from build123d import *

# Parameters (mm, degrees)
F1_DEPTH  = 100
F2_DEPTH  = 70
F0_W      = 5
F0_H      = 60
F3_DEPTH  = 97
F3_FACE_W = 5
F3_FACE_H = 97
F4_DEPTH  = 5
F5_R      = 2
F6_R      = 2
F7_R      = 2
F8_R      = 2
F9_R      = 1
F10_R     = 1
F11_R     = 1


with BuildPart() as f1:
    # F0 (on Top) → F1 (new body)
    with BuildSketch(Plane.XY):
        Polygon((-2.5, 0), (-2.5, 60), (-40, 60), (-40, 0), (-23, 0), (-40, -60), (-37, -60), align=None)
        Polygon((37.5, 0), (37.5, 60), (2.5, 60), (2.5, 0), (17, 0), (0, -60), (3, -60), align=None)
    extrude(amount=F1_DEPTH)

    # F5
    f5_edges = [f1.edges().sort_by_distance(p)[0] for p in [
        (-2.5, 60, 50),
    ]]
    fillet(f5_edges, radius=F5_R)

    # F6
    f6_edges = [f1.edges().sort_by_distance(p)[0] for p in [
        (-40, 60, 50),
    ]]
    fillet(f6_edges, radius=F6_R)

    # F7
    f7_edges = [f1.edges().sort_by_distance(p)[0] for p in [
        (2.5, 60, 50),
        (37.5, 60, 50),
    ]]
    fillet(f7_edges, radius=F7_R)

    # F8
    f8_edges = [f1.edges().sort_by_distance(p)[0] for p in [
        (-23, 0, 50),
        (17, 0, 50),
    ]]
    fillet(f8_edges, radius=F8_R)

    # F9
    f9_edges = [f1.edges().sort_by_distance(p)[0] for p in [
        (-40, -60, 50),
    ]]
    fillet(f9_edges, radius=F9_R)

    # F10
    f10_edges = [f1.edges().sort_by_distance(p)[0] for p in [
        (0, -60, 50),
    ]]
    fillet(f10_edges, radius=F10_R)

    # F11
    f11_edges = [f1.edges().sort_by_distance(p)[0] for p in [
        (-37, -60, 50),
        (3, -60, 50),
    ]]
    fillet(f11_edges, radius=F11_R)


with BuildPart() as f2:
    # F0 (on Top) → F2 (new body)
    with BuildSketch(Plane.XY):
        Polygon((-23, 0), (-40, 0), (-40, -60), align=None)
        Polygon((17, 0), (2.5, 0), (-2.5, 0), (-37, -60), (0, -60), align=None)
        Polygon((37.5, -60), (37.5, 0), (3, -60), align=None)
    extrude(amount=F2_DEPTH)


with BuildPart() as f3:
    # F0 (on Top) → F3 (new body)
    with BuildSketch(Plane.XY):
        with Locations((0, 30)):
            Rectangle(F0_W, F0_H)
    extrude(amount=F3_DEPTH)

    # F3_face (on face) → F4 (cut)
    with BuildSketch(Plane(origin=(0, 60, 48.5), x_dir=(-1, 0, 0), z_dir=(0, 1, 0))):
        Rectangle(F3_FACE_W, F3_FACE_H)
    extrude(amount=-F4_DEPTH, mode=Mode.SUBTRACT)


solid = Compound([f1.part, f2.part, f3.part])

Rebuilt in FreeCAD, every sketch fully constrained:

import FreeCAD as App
import Part
import Sketcher

V = App.Vector
Q = App.Units.Quantity


def edges_at(feature, points):
    """Names of the edges that pass closest to the given points."""
    edges = feature.Shape.Edges
    near = lambda p: min(range(len(edges)), key=lambda i: edges[i].distToShape(Part.Vertex(*p))[0])
    return sorted({f"Edge{near(p) + 1}" for p in points})

doc = App.newDocument("Part")
body = doc.addObject("PartDesign::Body", "Body")
body.AllowCompound = True

# Sketch on XY plane
sketch1 = doc.addObject("Sketcher::SketchObject", "Sketch")
body.addObject(sketch1)
sketch1.AttachmentSupport = (doc.XY_Plane, [""])
sketch1.MapMode = "FlatFace"
sketch1.addGeometry([
    Part.LineSegment(V(-2.5, 0, 0), V(-2.5, 60, 0)),  # 0
    Part.LineSegment(V(-2.5, 60, 0), V(-40, 60, 0)),  # 1
    Part.LineSegment(V(-40, 60, 0), V(-40, 0, 0)),  # 2
    Part.LineSegment(V(-40, 0, 0), V(-23, 0, 0)),  # 3
    Part.LineSegment(V(-23, 0, 0), V(-40, -60, 0)),  # 4
    Part.LineSegment(V(-40, -60, 0), V(-37, -60, 0)),  # 5
    Part.LineSegment(V(-37, -60, 0), V(-2.5, 0, 0)),  # 6
    Part.LineSegment(V(37.5, 0, 0), V(37.5, 60, 0)),  # 7
    Part.LineSegment(V(37.5, 60, 0), V(2.5, 60, 0)),  # 8
    Part.LineSegment(V(2.5, 60, 0), V(2.5, 0, 0)),  # 9
    Part.LineSegment(V(2.5, 0, 0), V(17, 0, 0)),  # 10
    Part.LineSegment(V(17, 0, 0), V(0, -60, 0)),  # 11
    Part.LineSegment(V(0, -60, 0), V(3, -60, 0)),  # 12
    Part.LineSegment(V(3, -60, 0), V(37.5, 0, 0)),  # 13
], False)
sketch1.addConstraint([
    Sketcher.Constraint("Coincident", 0, 2, 1, 1),
    Sketcher.Constraint("Coincident", 1, 2, 2, 1),
    Sketcher.Constraint("Coincident", 2, 2, 3, 1),
    Sketcher.Constraint("Coincident", 3, 2, 4, 1),
    Sketcher.Constraint("Coincident", 4, 2, 5, 1),
    Sketcher.Constraint("Coincident", 5, 2, 6, 1),
    Sketcher.Constraint("Coincident", 6, 2, 0, 1),
    Sketcher.Constraint("Coincident", 7, 2, 8, 1),
    Sketcher.Constraint("Coincident", 8, 2, 9, 1),
    Sketcher.Constraint("Coincident", 9, 2, 10, 1),
    Sketcher.Constraint("Coincident", 10, 2, 11, 1),
    Sketcher.Constraint("Coincident", 11, 2, 12, 1),
    Sketcher.Constraint("Coincident", 12, 2, 13, 1),
    Sketcher.Constraint("Coincident", 13, 2, 7, 1),
    Sketcher.Constraint("Vertical", 0),
    Sketcher.Constraint("Horizontal", 1),
    Sketcher.Constraint("Vertical", 2),
    Sketcher.Constraint("Horizontal", 3),
    Sketcher.Constraint("Horizontal", 5),
    Sketcher.Constraint("Vertical", 7),
    Sketcher.Constraint("Horizontal", 8),
    Sketcher.Constraint("Vertical", 9),
    Sketcher.Constraint("Horizontal", 10),
    Sketcher.Constraint("Horizontal", 12),
    Sketcher.Constraint("Symmetric", 6, 2, 9, 2, -1, 1),
    Sketcher.Constraint("Symmetric", 1, 2, 4, 2, -1),
    Sketcher.Constraint("PointOnObject", 2, 2, -1),
    Sketcher.Constraint("PointOnObject", 6, 2, -1),
    Sketcher.Constraint("PointOnObject", 11, 2, -2),
    Sketcher.Constraint("PointOnObject", 13, 2, -1),
    Sketcher.Constraint("Parallel", 4, 11),
    Sketcher.Constraint("Parallel", 6, 13),
    Sketcher.Constraint("Horizontal", 1, 2, 7, 2),
    Sketcher.Constraint("Horizontal", 5, 2, 11, 2),
    Sketcher.Constraint("Equal", 5, 12),
    Sketcher.Constraint("DistanceX", 3, 1, 3, 2, Q("17 mm")),
    Sketcher.Constraint("DistanceX", 5, 1, 5, 2, Q("3 mm")),
    Sketcher.Constraint("DistanceX", 8, 2, 8, 1, Q("35 mm")),
    Sketcher.Constraint("DistanceY", 0, 1, 0, 2, Q("60 mm")),
    Sketcher.Constraint("DistanceX", 1, 2, 1, 1, Q("37.5 mm")),
])
pad1 = doc.addObject("PartDesign::Pad", "Pad")
body.addObject(pad1)
pad1.Profile = sketch1
pad1.Length = 100
doc.recompute()

fillet = doc.addObject("PartDesign::Fillet", "Fillet")
body.addObject(fillet)
fillet.Base = (pad1, edges_at(pad1, [(-2.5, 60, 50)]))
fillet.Radius = 2
doc.recompute()

fillet2 = doc.addObject("PartDesign::Fillet", "Fillet001")
body.addObject(fillet2)
fillet2.Base = (fillet, edges_at(fillet, [(-40, 60, 50)]))
fillet2.Radius = 2
doc.recompute()

fillet3 = doc.addObject("PartDesign::Fillet", "Fillet002")
body.addObject(fillet3)
fillet3.Base = (fillet2, edges_at(fillet2, [(2.5, 60, 50), (37.5, 60, 50)]))
fillet3.Radius = 2
doc.recompute()

fillet4 = doc.addObject("PartDesign::Fillet", "Fillet003")
body.addObject(fillet4)
fillet4.Base = (fillet3, edges_at(fillet3, [(-23, 0, 50), (17, 0, 50)]))
fillet4.Radius = 2
doc.recompute()

fillet5 = doc.addObject("PartDesign::Fillet", "Fillet004")
body.addObject(fillet5)
fillet5.Base = (fillet4, edges_at(fillet4, [(-40, -60, 50)]))
fillet5.Radius = 1
doc.recompute()

fillet6 = doc.addObject("PartDesign::Fillet", "Fillet005")
body.addObject(fillet6)
fillet6.Base = (fillet5, edges_at(fillet5, [(0, -60, 50)]))
fillet6.Radius = 1
doc.recompute()

fillet7 = doc.addObject("PartDesign::Fillet", "Fillet006")
body.addObject(fillet7)
fillet7.Base = (fillet6, edges_at(fillet6, [(-37, -60, 50), (3, -60, 50)]))
fillet7.Radius = 1
body2 = doc.addObject("PartDesign::Body", "Body001")
body2.AllowCompound = True

# Sketch on XY plane
sketch2 = doc.addObject("Sketcher::SketchObject", "Sketch001")
body2.addObject(sketch2)
sketch2.AttachmentSupport = (doc.getObject("XY_Plane001"), [""])
sketch2.MapMode = "FlatFace"
sketch2.addGeometry([
    Part.LineSegment(V(-23, 0, 0), V(-40, 0, 0)),  # 0
    Part.LineSegment(V(-40, 0, 0), V(-40, -60, 0)),  # 1
    Part.LineSegment(V(-40, -60, 0), V(-23, 0, 0)),  # 2
    Part.LineSegment(V(17, 0, 0), V(-2, 0, 0)),  # 3
    Part.LineSegment(V(-2, 0, 0), V(-37, -60, 0)),  # 4
    Part.LineSegment(V(-37, -60, 0), V(0, -60, 0)),  # 5
    Part.LineSegment(V(0, -60, 0), V(17, 0, 0)),  # 6
    Part.LineSegment(V(38, -60, 0), V(38, 0, 0)),  # 7
    Part.LineSegment(V(38, 0, 0), V(3, -60, 0)),  # 8
    Part.LineSegment(V(3, -60, 0), V(38, -60, 0)),  # 9
], False)
sketch2.addConstraint([
    Sketcher.Constraint("Coincident", 0, 2, 1, 1),
    Sketcher.Constraint("Coincident", 1, 2, 2, 1),
    Sketcher.Constraint("Coincident", 2, 2, 0, 1),
    Sketcher.Constraint("Coincident", 3, 2, 4, 1),
    Sketcher.Constraint("Coincident", 4, 2, 5, 1),
    Sketcher.Constraint("Coincident", 5, 2, 6, 1),
    Sketcher.Constraint("Coincident", 6, 2, 3, 1),
    Sketcher.Constraint("Coincident", 7, 2, 8, 1),
    Sketcher.Constraint("Coincident", 8, 2, 9, 1),
    Sketcher.Constraint("Coincident", 9, 2, 7, 1),
    Sketcher.Constraint("Horizontal", 0),
    Sketcher.Constraint("Vertical", 1),
    Sketcher.Constraint("Horizontal", 3),
    Sketcher.Constraint("Horizontal", 5),
    Sketcher.Constraint("Vertical", 7),
    Sketcher.Constraint("Horizontal", 9),
    Sketcher.Constraint("PointOnObject", 0, 2, -1),
    Sketcher.Constraint("PointOnObject", 3, 2, -1),
    Sketcher.Constraint("PointOnObject", 5, 2, -2),
    Sketcher.Constraint("PointOnObject", 7, 2, -1),
    Sketcher.Constraint("Parallel", 2, 6),
    Sketcher.Constraint("Parallel", 4, 8),
    Sketcher.Constraint("Horizontal", 1, 2, 4, 2),
    Sketcher.Constraint("Horizontal", 5, 2, 8, 2),
    Sketcher.Constraint("DistanceX", 0, 2, 0, 1, Q("17 mm")),
    Sketcher.Constraint("DistanceX", 5, 1, 5, 2, Q("37 mm")),
    Sketcher.Constraint("DistanceY", 1, 2, 1, 1, Q("60 mm")),
    Sketcher.Constraint("DistanceX", 3, 2, 3, 1, Q("19.5 mm")),
    Sketcher.Constraint("DistanceX", 0, 2, -1, 1, Q("40 mm")),
    Sketcher.Constraint("DistanceX", -1, 1, 8, 2, Q("3 mm")),
])
pad2 = doc.addObject("PartDesign::Pad", "Pad001")
body2.addObject(pad2)
pad2.Profile = sketch2
pad2.Length = 70
body3 = doc.addObject("PartDesign::Body", "Body002")

# Sketch on XY plane
sketch3 = doc.addObject("Sketcher::SketchObject", "Sketch002")
body3.addObject(sketch3)
sketch3.AttachmentSupport = (doc.getObject("XY_Plane002"), [""])
sketch3.MapMode = "FlatFace"
sketch3.addGeometry([
    Part.LineSegment(V(-2, 60, 0), V(-2, 0, 0)),
    Part.LineSegment(V(-2, 0, 0), V(2, 0, 0)),
    Part.LineSegment(V(2, 0, 0), V(2, 60, 0)),
    Part.LineSegment(V(2, 60, 0), V(-2, 60, 0)),
], False)
sketch3.addConstraint([
    Sketcher.Constraint("Coincident", 0, 2, 1, 1),
    Sketcher.Constraint("Coincident", 1, 2, 2, 1),
    Sketcher.Constraint("Coincident", 2, 2, 3, 1),
    Sketcher.Constraint("Coincident", 3, 2, 0, 1),
    Sketcher.Constraint("Vertical", 0),
    Sketcher.Constraint("Horizontal", 1),
    Sketcher.Constraint("Vertical", 2),
    Sketcher.Constraint("Horizontal", 3),
    Sketcher.Constraint("Symmetric", 0, 2, 1, 2, -1, 1),
    Sketcher.Constraint("DistanceX", 1, 1, 1, 2, Q("5 mm")),
    Sketcher.Constraint("DistanceY", 0, 2, 0, 1, Q("60 mm")),
])
pad3 = doc.addObject("PartDesign::Pad", "Pad002")
body3.addObject(pad3)
pad3.Profile = sketch3
pad3.Length = 97

# Sketch on XZ plane
sketch4 = doc.addObject("Sketcher::SketchObject", "Sketch003")
body3.addObject(sketch4)
sketch4.AttachmentSupport = (doc.getObject("XZ_Plane002"), [""])
sketch4.MapMode = "FlatFace"
sketch4.AttachmentOffset = App.Placement(V(0, 0, -60), App.Rotation())
sketch4.addGeometry([
    Part.LineSegment(V(2, 97, 0), V(2, 0, 0)),
    Part.LineSegment(V(2, 0, 0), V(-2, 0, 0)),
    Part.LineSegment(V(-2, 0, 0), V(-2, 97, 0)),
    Part.LineSegment(V(-2, 97, 0), V(2, 97, 0)),
], False)
sketch4.addConstraint([
    Sketcher.Constraint("Coincident", 0, 2, 1, 1),
    Sketcher.Constraint("Coincident", 1, 2, 2, 1),
    Sketcher.Constraint("Coincident", 2, 2, 3, 1),
    Sketcher.Constraint("Coincident", 3, 2, 0, 1),
    Sketcher.Constraint("Vertical", 0),
    Sketcher.Constraint("Horizontal", 1),
    Sketcher.Constraint("Vertical", 2),
    Sketcher.Constraint("Horizontal", 3),
    Sketcher.Constraint("Symmetric", 0, 2, 1, 2, -1, 1),
    Sketcher.Constraint("DistanceX", 1, 2, 1, 1, Q("5 mm")),
    Sketcher.Constraint("DistanceY", 0, 2, 0, 1, Q("97 mm")),
])
pocket1 = doc.addObject("PartDesign::Pocket", "Pocket")
body3.addObject(pocket1)
pocket1.Profile = sketch4
pocket1.Length = 5
pocket1.Reversed = True

doc.recompute()
